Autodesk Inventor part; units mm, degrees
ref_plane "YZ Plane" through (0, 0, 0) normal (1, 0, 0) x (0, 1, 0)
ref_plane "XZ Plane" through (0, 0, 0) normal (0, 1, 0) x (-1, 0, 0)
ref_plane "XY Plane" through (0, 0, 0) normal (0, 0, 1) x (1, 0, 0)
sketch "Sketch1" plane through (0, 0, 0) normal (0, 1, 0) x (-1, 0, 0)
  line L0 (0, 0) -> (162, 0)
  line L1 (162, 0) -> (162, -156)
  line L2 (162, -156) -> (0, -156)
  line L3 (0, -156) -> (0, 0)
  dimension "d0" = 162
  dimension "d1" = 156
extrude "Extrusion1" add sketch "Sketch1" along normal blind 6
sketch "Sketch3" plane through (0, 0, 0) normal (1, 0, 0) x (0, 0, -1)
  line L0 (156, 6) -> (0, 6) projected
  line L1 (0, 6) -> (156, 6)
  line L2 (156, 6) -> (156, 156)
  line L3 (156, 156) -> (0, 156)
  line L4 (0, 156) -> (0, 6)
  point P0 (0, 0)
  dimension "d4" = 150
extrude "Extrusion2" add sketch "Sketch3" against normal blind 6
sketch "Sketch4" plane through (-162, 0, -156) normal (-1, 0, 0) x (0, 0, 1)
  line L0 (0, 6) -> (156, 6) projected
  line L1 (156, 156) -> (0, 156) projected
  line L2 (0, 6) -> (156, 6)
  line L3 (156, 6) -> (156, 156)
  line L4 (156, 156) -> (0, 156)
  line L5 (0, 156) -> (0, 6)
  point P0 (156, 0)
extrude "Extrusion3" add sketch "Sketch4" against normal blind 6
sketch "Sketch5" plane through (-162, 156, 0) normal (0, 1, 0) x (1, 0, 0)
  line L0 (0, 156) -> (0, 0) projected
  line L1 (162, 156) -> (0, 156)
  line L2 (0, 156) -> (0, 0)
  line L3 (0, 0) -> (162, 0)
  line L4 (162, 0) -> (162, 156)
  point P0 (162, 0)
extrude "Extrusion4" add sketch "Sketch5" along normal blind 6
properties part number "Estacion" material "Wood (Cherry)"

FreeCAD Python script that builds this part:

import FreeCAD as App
import Part
import Sketcher

V = App.Vector

doc = App.newDocument("Part")
body = doc.addObject("PartDesign::Body", "Body")

sketch1 = body.newObject("Sketcher::SketchObject", "Sketch")
sketch1.AttachmentSupport = (doc.getObject("XZ_Plane"), [""])
sketch1.MapMode = "FlatFace"
sketch1.addGeometry([
    Part.LineSegment(V(-162, 0, 0), V(0, 0, 0)),
    Part.LineSegment(V(0, 0, 0), V(0, -156, 0)),
    Part.LineSegment(V(0, -156, 0), V(-162, -156, 0)),
    Part.LineSegment(V(-162, -156, 0), V(-162, 0, 0)),
], False)
sketch1.addConstraint([
    Sketcher.Constraint("Coincident", 0, 2, 1, 1),
    Sketcher.Constraint("Coincident", 1, 2, 2, 1),
    Sketcher.Constraint("Coincident", 2, 2, 3, 1),
    Sketcher.Constraint("Coincident", 3, 2, 0, 1),
    Sketcher.Constraint("Horizontal", 0),
    Sketcher.Constraint("Vertical", 1),
    Sketcher.Constraint("Horizontal", 2),
    Sketcher.Constraint("Vertical", 3),
    Sketcher.Constraint("Coincident", 0, 2, -1, 1),
    Sketcher.Constraint("DistanceX", 0, 1, 0, 2, 162.0),
    Sketcher.Constraint("DistanceY", 1, 2, 1, 1, 156.0),
])
pad1 = body.newObject("PartDesign::Pad", "Pad")
pad1.Profile = sketch1
pad1.Length = 6
pad1.Reversed = True

sketch2 = body.newObject("Sketcher::SketchObject", "Sketch001")
sketch2.AttachmentSupport = (doc.getObject("YZ_Plane"), [""])
sketch2.MapMode = "FlatFace"
sketch2.addGeometry([
    Part.LineSegment(V(6, 0, 0), V(6, -156, 0)),
    Part.LineSegment(V(6, -156, 0), V(156, -156, 0)),
    Part.LineSegment(V(156, -156, 0), V(156, 0, 0)),
    Part.LineSegment(V(156, 0, 0), V(6, 0, 0)),
], False)
sketch2.addConstraint([
    Sketcher.Constraint("Coincident", 0, 2, 1, 1),
    Sketcher.Constraint("Coincident", 1, 2, 2, 1),
    Sketcher.Constraint("Coincident", 2, 2, 3, 1),
    Sketcher.Constraint("Coincident", 3, 2, 0, 1),
    Sketcher.Constraint("Vertical", 0),
    Sketcher.Constraint("Horizontal", 1),
    Sketcher.Constraint("Vertical", 2),
    Sketcher.Constraint("Horizontal", 3),
    Sketcher.Constraint("PointOnObject", 2, 2, -1),
    Sketcher.Constraint("DistanceX", 1, 1, 1, 2, 150.0),
    Sketcher.Constraint("DistanceY", 0, 2, 0, 1, 156.0),
    Sketcher.Constraint("DistanceX", -1, 1, 0, 2, 6.0),
])
pad2 = body.newObject("PartDesign::Pad", "Pad001")
pad2.Profile = sketch2
pad2.Length = 6
pad2.Reversed = True

sketch3 = body.newObject("Sketcher::SketchObject", "Sketch002")
sketch3.AttachmentSupport = (doc.getObject("YZ_Plane"), [""])
sketch3.MapMode = "FlatFace"
sketch3.AttachmentOffset = App.Placement(V(0, 0, -162), App.Rotation())
sketch3.addGeometry([
    Part.LineSegment(V(156, -156, 0), V(6, -156, 0)),
    Part.LineSegment(V(6, -156, 0), V(6, 0, 0)),
    Part.LineSegment(V(6, 0, 0), V(156, 0, 0)),
    Part.LineSegment(V(156, 0, 0), V(156, -156, 0)),
], False)
sketch3.addConstraint([
    Sketcher.Constraint("Coincident", 0, 2, 1, 1),
    Sketcher.Constraint("Coincident", 1, 2, 2, 1),
    Sketcher.Constraint("Coincident", 2, 2, 3, 1),
    Sketcher.Constraint("Coincident", 3, 2, 0, 1),
    Sketcher.Constraint("Horizontal", 0),
    Sketcher.Constraint("Vertical", 1),
    Sketcher.Constraint("Horizontal", 2),
    Sketcher.Constraint("Vertical", 3),
    Sketcher.Constraint("PointOnObject", 1, 2, -1),
    Sketcher.Constraint("DistanceX", 0, 2, 0, 1, 150.0),
    Sketcher.Constraint("DistanceY", 1, 1, 1, 2, 156.0),
    Sketcher.Constraint("DistanceX", -1, 1, 0, 2, 6.0),
])
pad3 = body.newObject("PartDesign::Pad", "Pad002")
pad3.Profile = sketch3
pad3.Length = 6

sketch4 = body.newObject("Sketcher::SketchObject", "Sketch003")
sketch4.AttachmentSupport = (doc.getObject("XZ_Plane"), [""])
sketch4.MapMode = "FlatFace"
sketch4.AttachmentOffset = App.Placement(V(0, 0, -156), App.Rotation())
sketch4.addGeometry([
    Part.LineSegment(V(0, -156, 0), V(-162, -156, 0)),
    Part.LineSegment(V(-162, -156, 0), V(-162, 0, 0)),
    Part.LineSegment(V(-162, 0, 0), V(0, 0, 0)),
    Part.LineSegment(V(0, 0, 0), V(0, -156, 0)),
], False)
sketch4.addConstraint([
    Sketcher.Constraint("Coincident", 0, 2, 1, 1),
    Sketcher.Constraint("Coincident", 1, 2, 2, 1),
    Sketcher.Constraint("Coincident", 2, 2, 3, 1),
    Sketcher.Constraint("Coincident", 3, 2, 0, 1),
    Sketcher.Constraint("Horizontal", 0),
    Sketcher.Constraint("Vertical", 1),
    Sketcher.Constraint("Horizontal", 2),
    Sketcher.Constraint("Vertical", 3),
    Sketcher.Constraint("Coincident", 2, 2, -1, 1),
    Sketcher.Constraint("DistanceX", 0, 2, 0, 1, 162.0),
    Sketcher.Constraint("DistanceY", 1, 1, 1, 2, 156.0),
])
pad4 = body.newObject("PartDesign::Pad", "Pad003")
pad4.Profile = sketch4
pad4.Length = 6
pad4.Reversed = True

doc.recompute()
